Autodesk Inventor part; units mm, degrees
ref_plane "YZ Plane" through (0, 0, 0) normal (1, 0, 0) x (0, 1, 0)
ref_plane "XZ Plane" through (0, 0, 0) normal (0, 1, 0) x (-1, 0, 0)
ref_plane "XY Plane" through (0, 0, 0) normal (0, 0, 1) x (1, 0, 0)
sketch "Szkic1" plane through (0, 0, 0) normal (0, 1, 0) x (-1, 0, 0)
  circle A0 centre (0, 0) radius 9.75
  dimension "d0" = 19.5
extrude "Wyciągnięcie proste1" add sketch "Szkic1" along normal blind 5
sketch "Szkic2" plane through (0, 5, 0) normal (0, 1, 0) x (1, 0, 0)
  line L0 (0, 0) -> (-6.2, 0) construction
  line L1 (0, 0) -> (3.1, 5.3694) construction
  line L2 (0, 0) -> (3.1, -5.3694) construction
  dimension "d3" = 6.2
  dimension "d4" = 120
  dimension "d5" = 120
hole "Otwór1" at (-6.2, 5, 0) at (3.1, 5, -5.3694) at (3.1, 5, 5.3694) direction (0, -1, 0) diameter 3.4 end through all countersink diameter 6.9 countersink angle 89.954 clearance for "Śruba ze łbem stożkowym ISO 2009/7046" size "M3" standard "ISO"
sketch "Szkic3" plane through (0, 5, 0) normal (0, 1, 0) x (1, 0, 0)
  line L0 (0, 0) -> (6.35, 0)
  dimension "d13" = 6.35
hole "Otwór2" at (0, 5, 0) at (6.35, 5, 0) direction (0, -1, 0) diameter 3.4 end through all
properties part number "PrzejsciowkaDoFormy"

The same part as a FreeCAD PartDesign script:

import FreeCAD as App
import Part
import Sketcher
from FreeCAD import Vector

doc = App.newDocument("Part")
body = doc.addObject("PartDesign::Body", "Body")

# Sketch on XZ plane
sketch1 = body.newObject("Sketcher::SketchObject", "Sketch")
sketch1.AttachmentSupport = (doc.getObject("XZ_Plane"), [""])
sketch1.MapMode = "FlatFace"
sketch1.addGeometry(Part.Circle(Vector(0, 0, 0), Vector(0, 0, 1), 9.75), False)
sketch1.addConstraint([
    Sketcher.Constraint("Coincident", 0, 3, -1, 1),
    Sketcher.Constraint("Diameter", 0, 19.5),
])
pad1 = body.newObject("PartDesign::Pad", "Pad")
pad1.Profile = sketch1
pad1.Length = 5
pad1.Reversed = True

# Sketch on XZ plane
sketch2 = body.newObject("Sketcher::SketchObject", "Sketch001")
sketch2.AttachmentSupport = (doc.getObject("XZ_Plane"), [""])
sketch2.MapMode = "FlatFace"
sketch2.AttachmentOffset = App.Placement(Vector(0, 0, -5), App.Rotation())
sketch2.addGeometry([
    Part.Circle(Vector(-6.2, 0, 0), Vector(0, 0, 1), 1.7),
    Part.Circle(Vector(3.1, -5.3694, 0), Vector(0, 0, 1), 1.7),
    Part.Circle(Vector(3.1, 5.3694, 0), Vector(0, 0, 1), 1.7),
], False)
sketch2.addConstraint([
    Sketcher.Constraint("Equal", 0, 1),
    Sketcher.Constraint("Equal", 1, 2),
    Sketcher.Constraint("Symmetric", 1, 3, 2, 3, -1),
    Sketcher.Constraint("PointOnObject", 0, 3, -1),
    Sketcher.Constraint("Diameter", 0, 3.4),
    Sketcher.Constraint("DistanceX", 0, 3, -1, 1, 6.2),
    Sketcher.Constraint("DistanceX", -1, 1, 1, 3, 3.1),
    Sketcher.Constraint("DistanceY", 1, 3, -1, 1, 5.3694),
])
doc.recompute()
hole = body.newObject("PartDesign::Hole", "Hole")
hole.Profile = sketch2
hole.ThreadType = "None"
hole.Diameter = 3.4
hole.DepthType = "ThroughAll"
hole.HoleCutType = "Countersink"
hole.HoleCutDiameter = 6.9
hole.HoleCutCountersinkAngle = 89.954
hole.Reversed = True

# Sketch on XZ plane
sketch3 = body.newObject("Sketcher::SketchObject", "Sketch002")
sketch3.AttachmentSupport = (doc.getObject("XZ_Plane"), [""])
sketch3.MapMode = "FlatFace"
sketch3.AttachmentOffset = App.Placement(Vector(0, 0, -5), App.Rotation())
sketch3.addGeometry([
    Part.Circle(Vector(0, 0, 0), Vector(0, 0, 1), 1.7),
    Part.Circle(Vector(6.35, 0, 0), Vector(0, 0, 1), 1.7),
], False)
sketch3.addConstraint([
    Sketcher.Constraint("Coincident", 0, 3, -1, 1),
    Sketcher.Constraint("Equal", 0, 1),
    Sketcher.Constraint("PointOnObject", 1, 3, -1),
    Sketcher.Constraint("Diameter", 0, 3.4),
    Sketcher.Constraint("DistanceX", -1, 1, 1, 3, 6.35),
])
doc.recompute()
hole2 = body.newObject("PartDesign::Hole", "Hole001")
hole2.Profile = sketch3
hole2.ThreadType = "None"
hole2.Diameter = 3.4
hole2.DepthType = "ThroughAll"
hole2.Reversed = True

doc.recompute()
